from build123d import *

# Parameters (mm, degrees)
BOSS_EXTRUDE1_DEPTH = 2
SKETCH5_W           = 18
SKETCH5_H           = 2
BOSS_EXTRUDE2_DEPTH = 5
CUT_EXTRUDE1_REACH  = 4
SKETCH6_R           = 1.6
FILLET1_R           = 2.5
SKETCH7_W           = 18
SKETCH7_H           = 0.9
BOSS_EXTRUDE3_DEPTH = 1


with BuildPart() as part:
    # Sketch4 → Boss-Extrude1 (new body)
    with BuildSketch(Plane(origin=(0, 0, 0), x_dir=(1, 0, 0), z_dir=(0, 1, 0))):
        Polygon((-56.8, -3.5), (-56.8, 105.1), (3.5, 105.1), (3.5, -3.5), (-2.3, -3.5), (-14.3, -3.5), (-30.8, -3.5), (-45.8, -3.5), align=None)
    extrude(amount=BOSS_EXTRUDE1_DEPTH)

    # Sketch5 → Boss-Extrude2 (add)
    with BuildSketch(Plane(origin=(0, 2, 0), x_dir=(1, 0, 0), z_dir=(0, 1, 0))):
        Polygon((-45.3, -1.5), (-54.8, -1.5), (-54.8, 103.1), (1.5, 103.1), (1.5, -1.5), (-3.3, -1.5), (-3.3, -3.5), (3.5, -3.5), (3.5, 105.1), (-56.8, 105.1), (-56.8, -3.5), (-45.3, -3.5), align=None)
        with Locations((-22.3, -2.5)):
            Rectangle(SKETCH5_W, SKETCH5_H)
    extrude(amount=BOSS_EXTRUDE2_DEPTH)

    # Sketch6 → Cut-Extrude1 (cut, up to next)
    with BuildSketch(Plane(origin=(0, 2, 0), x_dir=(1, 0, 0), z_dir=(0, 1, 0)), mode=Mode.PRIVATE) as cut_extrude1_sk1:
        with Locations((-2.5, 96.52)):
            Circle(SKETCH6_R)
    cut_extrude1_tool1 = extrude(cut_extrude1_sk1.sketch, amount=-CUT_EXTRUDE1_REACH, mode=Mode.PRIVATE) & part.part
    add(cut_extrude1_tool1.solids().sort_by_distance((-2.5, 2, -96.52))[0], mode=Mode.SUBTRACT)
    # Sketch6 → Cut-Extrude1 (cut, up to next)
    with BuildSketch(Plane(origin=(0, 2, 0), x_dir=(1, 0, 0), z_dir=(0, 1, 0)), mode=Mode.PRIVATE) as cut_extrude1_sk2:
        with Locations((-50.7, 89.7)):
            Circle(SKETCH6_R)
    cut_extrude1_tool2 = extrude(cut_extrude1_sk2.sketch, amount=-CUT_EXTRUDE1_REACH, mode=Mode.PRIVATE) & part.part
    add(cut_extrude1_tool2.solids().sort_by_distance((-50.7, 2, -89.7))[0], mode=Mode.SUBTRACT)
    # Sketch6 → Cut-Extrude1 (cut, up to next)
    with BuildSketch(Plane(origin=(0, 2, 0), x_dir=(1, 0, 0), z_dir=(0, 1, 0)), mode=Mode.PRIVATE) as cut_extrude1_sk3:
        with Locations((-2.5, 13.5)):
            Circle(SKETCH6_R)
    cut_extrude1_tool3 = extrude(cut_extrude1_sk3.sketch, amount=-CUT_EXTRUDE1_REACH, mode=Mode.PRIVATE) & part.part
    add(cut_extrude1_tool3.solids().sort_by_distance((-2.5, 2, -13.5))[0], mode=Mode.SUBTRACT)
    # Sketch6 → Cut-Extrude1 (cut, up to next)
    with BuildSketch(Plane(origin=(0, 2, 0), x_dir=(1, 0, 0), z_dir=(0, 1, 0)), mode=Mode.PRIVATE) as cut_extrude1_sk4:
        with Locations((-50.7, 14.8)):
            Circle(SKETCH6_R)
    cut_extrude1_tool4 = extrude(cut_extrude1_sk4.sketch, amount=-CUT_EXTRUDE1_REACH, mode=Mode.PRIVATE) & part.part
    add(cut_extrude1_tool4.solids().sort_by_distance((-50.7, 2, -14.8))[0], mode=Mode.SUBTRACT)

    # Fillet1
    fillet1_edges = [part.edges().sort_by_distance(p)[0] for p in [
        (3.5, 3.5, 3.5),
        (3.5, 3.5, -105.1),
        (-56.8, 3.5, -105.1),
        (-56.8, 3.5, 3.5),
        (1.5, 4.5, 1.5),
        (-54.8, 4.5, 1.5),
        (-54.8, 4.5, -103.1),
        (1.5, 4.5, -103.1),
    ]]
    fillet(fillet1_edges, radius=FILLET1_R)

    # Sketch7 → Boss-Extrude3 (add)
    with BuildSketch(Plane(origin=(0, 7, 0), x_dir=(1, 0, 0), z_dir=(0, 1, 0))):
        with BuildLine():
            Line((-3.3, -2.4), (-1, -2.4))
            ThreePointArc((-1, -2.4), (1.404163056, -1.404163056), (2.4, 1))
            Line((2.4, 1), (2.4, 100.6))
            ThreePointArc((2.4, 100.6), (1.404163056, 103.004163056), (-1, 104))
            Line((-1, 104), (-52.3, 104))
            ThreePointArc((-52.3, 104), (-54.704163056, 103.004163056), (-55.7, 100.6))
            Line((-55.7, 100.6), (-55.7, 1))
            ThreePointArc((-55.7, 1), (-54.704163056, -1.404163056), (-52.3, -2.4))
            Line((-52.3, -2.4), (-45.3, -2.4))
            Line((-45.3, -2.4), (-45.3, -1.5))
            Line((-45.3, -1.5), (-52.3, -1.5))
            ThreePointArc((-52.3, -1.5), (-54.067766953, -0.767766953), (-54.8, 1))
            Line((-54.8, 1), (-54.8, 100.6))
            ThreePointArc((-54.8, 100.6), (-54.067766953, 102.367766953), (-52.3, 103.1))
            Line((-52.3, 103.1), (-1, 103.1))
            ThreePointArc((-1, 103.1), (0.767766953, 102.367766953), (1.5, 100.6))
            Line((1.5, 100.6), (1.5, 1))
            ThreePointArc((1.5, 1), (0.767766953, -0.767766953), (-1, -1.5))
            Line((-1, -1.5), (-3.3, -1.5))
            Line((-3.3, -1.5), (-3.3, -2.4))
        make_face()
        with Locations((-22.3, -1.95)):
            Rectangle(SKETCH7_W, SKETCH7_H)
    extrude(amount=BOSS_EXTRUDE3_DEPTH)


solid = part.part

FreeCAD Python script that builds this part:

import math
import FreeCAD as App
import Part
import Sketcher
from FreeCAD import Vector


def edges_at(feature, points):
    """Names of the edges that pass closest to the given points."""
    edges = feature.Shape.Edges
    near = lambda p: min(range(len(edges)), key=lambda i: edges[i].distToShape(Part.Vertex(*p))[0])
    return sorted({f"Edge{near(p) + 1}" for p in points})

doc = App.newDocument("Part")
body = doc.addObject("PartDesign::Body", "Body")

sketch1 = doc.addObject("Sketcher::SketchObject", "Sketch")
body.addObject(sketch1)
sketch1.AttachmentSupport = (doc.XZ_Plane, [""])
sketch1.MapMode = "FlatFace"
sketch1.addGeometry(Part.LineSegment(Vector(-57, -105, 0), Vector(-57, 4, 0)), False)
sketch1.addGeometry(Part.LineSegment(Vector(-57, 4, 0), Vector(4, 4, 0)), False)
sketch1.addGeometry(Part.LineSegment(Vector(4, 4, 0), Vector(4, -105, 0)), False)
sketch1.addGeometry(Part.LineSegment(Vector(4, -105, 0), Vector(-57, -105, 0)), False)
sketch1.addConstraint(Sketcher.Constraint("Coincident", 0, 2, 1, 1))
sketch1.addConstraint(Sketcher.Constraint("Coincident", 1, 2, 2, 1))
sketch1.addConstraint(Sketcher.Constraint("Coincident", 2, 2, 3, 1))
sketch1.addConstraint(Sketcher.Constraint("Coincident", 3, 2, 0, 1))
sketch1.addConstraint(Sketcher.Constraint("Vertical", 0))
sketch1.addConstraint(Sketcher.Constraint("Horizontal", 1))
sketch1.addConstraint(Sketcher.Constraint("Vertical", 2))
sketch1.addConstraint(Sketcher.Constraint("Horizontal", 3))
sketch1.addConstraint(Sketcher.Constraint("DistanceX", 1, 1, 1, 2, 60.3))
sketch1.addConstraint(Sketcher.Constraint("DistanceY", 0, 1, 0, 2, 108.6))
sketch1.addConstraint(Sketcher.Constraint("DistanceX", 0, 2, -1, 1, 56.8))
sketch1.addConstraint(Sketcher.Constraint("DistanceY", -1, 1, 0, 2, 3.5))
pad1 = doc.addObject("PartDesign::Pad", "Pad")
body.addObject(pad1)
pad1.Profile = sketch1
pad1.Length = 2
pad1.Reversed = True

sketch2 = doc.addObject("Sketcher::SketchObject", "Sketch001")
body.addObject(sketch2)
sketch2.AttachmentSupport = (doc.XZ_Plane, [""])
sketch2.MapMode = "FlatFace"
sketch2.AttachmentOffset = App.Placement(Vector(0, 0, -2), App.Rotation())
sketch2.addGeometry(Part.LineSegment(Vector(-45.3, 1.5, 0), Vector(-54.8, 1.5, 0)), False)
sketch2.addGeometry(Part.LineSegment(Vector(-54.8, 1.5, 0), Vector(-54.8, -103.1, 0)), False)
sketch2.addGeometry(Part.LineSegment(Vector(-54.8, -103.1, 0), Vector(1.5, -103.1, 0)), False)
sketch2.addGeometry(Part.LineSegment(Vector(1.5, -103.1, 0), Vector(1.5, 1.5, 0)), False)
sketch2.addGeometry(Part.LineSegment(Vector(1.5, 1.5, 0), Vector(-3.3, 1.5, 0)), False)
sketch2.addGeometry(Part.LineSegment(Vector(-3.3, 1.5, 0), Vector(-3.3, 3.5, 0)), False)
sketch2.addGeometry(Part.LineSegment(Vector(-3.3, 3.5, 0), Vector(3.5, 3.5, 0)), False)
sketch2.addGeometry(Part.LineSegment(Vector(3.5, 3.5, 0), Vector(3.5, -105.1, 0)), False)
sketch2.addGeometry(Part.LineSegment(Vector(3.5, -105.1, 0), Vector(-56.8, -105.1, 0)), False)
sketch2.addGeometry(Part.LineSegment(Vector(-56.8, -105.1, 0), Vector(-56.8, 3.5, 0)), False)
sketch2.addGeometry(Part.LineSegment(Vector(-56.8, 3.5, 0), Vector(-45.3, 3.5, 0)), False)
sketch2.addGeometry(Part.LineSegment(Vector(-45.3, 3.5, 0), Vector(-45.3, 1.5, 0)), False)
sketch2.addGeometry(Part.LineSegment(Vector(-31.3, 1.5, 0), Vector(-31.3, 3.5, 0)), False)
sketch2.addGeometry(Part.LineSegment(Vector(-31.3, 3.5, 0), Vector(-13.3, 3.5, 0)), False)
sketch2.addGeometry(Part.LineSegment(Vector(-13.3, 3.5, 0), Vector(-13.3, 1.5, 0)), False)
sketch2.addGeometry(Part.LineSegment(Vector(-13.3, 1.5, 0), Vector(-31.3, 1.5, 0)), False)
sketch2.addConstraint(Sketcher.Constraint("Coincident", 0, 2, 1, 1))
sketch2.addConstraint(Sketcher.Constraint("Coincident", 1, 2, 2, 1))
sketch2.addConstraint(Sketcher.Constraint("Coincident", 2, 2, 3, 1))
sketch2.addConstraint(Sketcher.Constraint("Coincident", 3, 2, 4, 1))
sketch2.addConstraint(Sketcher.Constraint("Coincident", 4, 2, 5, 1))
sketch2.addConstraint(Sketcher.Constraint("Coincident", 5, 2, 6, 1))
sketch2.addConstraint(Sketcher.Constraint("Coincident", 6, 2, 7, 1))
sketch2.addConstraint(Sketcher.Constraint("Coincident", 7, 2, 8, 1))
sketch2.addConstraint(Sketcher.Constraint("Coincident", 8, 2, 9, 1))
sketch2.addConstraint(Sketcher.Constraint("Coincident", 9, 2, 10, 1))
sketch2.addConstraint(Sketcher.Constraint("Coincident", 10, 2, 11, 1))
sketch2.addConstraint(Sketcher.Constraint("Coincident", 11, 2, 0, 1))
sketch2.addConstraint(Sketcher.Constraint("Coincident", 12, 2, 13, 1))
sketch2.addConstraint(Sketcher.Constraint("Coincident", 13, 2, 14, 1))
sketch2.addConstraint(Sketcher.Constraint("Coincident", 14, 2, 15, 1))
sketch2.addConstraint(Sketcher.Constraint("Coincident", 15, 2, 12, 1))
sketch2.addConstraint(Sketcher.Constraint("Horizontal", 0))
sketch2.addConstraint(Sketcher.Constraint("Vertical", 1))
sketch2.addConstraint(Sketcher.Constraint("Horizontal", 2))
sketch2.addConstraint(Sketcher.Constraint("Vertical", 3))
sketch2.addConstraint(Sketcher.Constraint("Horizontal", 4))
sketch2.addConstraint(Sketcher.Constraint("Vertical", 5))
sketch2.addConstraint(Sketcher.Constraint("Horizontal", 6))
sketch2.addConstraint(Sketcher.Constraint("Vertical", 7))
sketch2.addConstraint(Sketcher.Constraint("Horizontal", 8))
sketch2.addConstraint(Sketcher.Constraint("Vertical", 9))
sketch2.addConstraint(Sketcher.Constraint("Horizontal", 10))
sketch2.addConstraint(Sketcher.Constraint("Vertical", 11))
sketch2.addConstraint(Sketcher.Constraint("Vertical", 12))
sketch2.addConstraint(Sketcher.Constraint("Horizontal", 13))
sketch2.addConstraint(Sketcher.Constraint("Vertical", 14))
sketch2.addConstraint(Sketcher.Constraint("Horizontal", 15))
sketch2.addConstraint(Sketcher.Constraint("Horizontal", 0, 2, 3, 2))
sketch2.addConstraint(Sketcher.Constraint("Horizontal", 6, 2, 9, 2))
sketch2.addConstraint(Sketcher.Constraint("Horizontal", 10, 2, 12, 2))
sketch2.addConstraint(Sketcher.Constraint("Horizontal", 11, 2, 14, 2))
sketch2.addConstraint(Sketcher.Constraint("DistanceX", 13, 1, 13, 2, 18.0))
sketch2.addConstraint(Sketcher.Constraint("DistanceY", 5, 1, 5, 2, 2.0))
sketch2.addConstraint(Sketcher.Constraint("DistanceX", 0, 2, 0, 1, 9.5))
sketch2.addConstraint(Sketcher.Constraint("DistanceX", 2, 1, 2, 2, 56.3))
sketch2.addConstraint(Sketcher.Constraint("DistanceX", 4, 2, 4, 1, 4.8))
sketch2.addConstraint(Sketcher.Constraint("DistanceX", 6, 1, 6, 2, 6.8))
sketch2.addConstraint(Sketcher.Constraint("DistanceX", 8, 2, 8, 1, 60.3))
sketch2.addConstraint(Sketcher.Constraint("DistanceY", 1, 2, 1, 1, 104.6))
sketch2.addConstraint(Sketcher.Constraint("DistanceY", 7, 2, 7, 1, 108.6))
sketch2.addConstraint(Sketcher.Constraint("DistanceX", 10, 2, 12, 2, 14.0))
sketch2.addConstraint(Sketcher.Constraint("DistanceX", 0, 2, -1, 1, 54.8))
sketch2.addConstraint(Sketcher.Constraint("DistanceY", -1, 1, 0, 2, 1.5))
pad2 = doc.addObject("PartDesign::Pad", "Pad001")
body.addObject(pad2)
pad2.Profile = sketch2
pad2.Length = 5
pad2.Reversed = True

sketch3 = doc.addObject("Sketcher::SketchObject", "Sketch002")
body.addObject(sketch3)
sketch3.AttachmentSupport = (doc.XZ_Plane, [""])
sketch3.MapMode = "FlatFace"
sketch3.AttachmentOffset = App.Placement(Vector(0, 0, -2), App.Rotation())
sketch3.addGeometry(Part.Circle(Vector(-2.5, -96.5, 0), Vector(0, 0, 1), 1.6), False)
sketch3.addConstraint(Sketcher.Constraint("Diameter", 0, 3.2))
sketch3.addConstraint(Sketcher.Constraint("DistanceX", 0, 3, -1, 1, 2.5))
sketch3.addConstraint(Sketcher.Constraint("DistanceY", 0, 3, -1, 1, 96.52))
pocket1 = doc.addObject("PartDesign::Pocket", "Pocket")
body.addObject(pocket1)
pocket1.Profile = sketch3
pocket1.Type = "UpToFirst"
pocket1.Reversed = True

sketch4 = doc.addObject("Sketcher::SketchObject", "Sketch003")
body.addObject(sketch4)
sketch4.AttachmentSupport = (doc.XZ_Plane, [""])
sketch4.MapMode = "FlatFace"
sketch4.AttachmentOffset = App.Placement(Vector(0, 0, -2), App.Rotation())
sketch4.addGeometry(Part.Circle(Vector(-50.7, -89.7, 0), Vector(0, 0, 1), 1.6), False)
sketch4.addConstraint(Sketcher.Constraint("Diameter", 0, 3.2))
sketch4.addConstraint(Sketcher.Constraint("DistanceX", 0, 3, -1, 1, 50.7))
sketch4.addConstraint(Sketcher.Constraint("DistanceY", 0, 3, -1, 1, 89.7))
pocket2 = doc.addObject("PartDesign::Pocket", "Pocket001")
body.addObject(pocket2)
pocket2.Profile = sketch4
pocket2.Type = "UpToFirst"
pocket2.Reversed = True

sketch5 = doc.addObject("Sketcher::SketchObject", "Sketch004")
body.addObject(sketch5)
sketch5.AttachmentSupport = (doc.XZ_Plane, [""])
sketch5.MapMode = "FlatFace"
sketch5.AttachmentOffset = App.Placement(Vector(0, 0, -2), App.Rotation())
sketch5.addGeometry(Part.Circle(Vector(-2.5, -13.5, 0), Vector(0, 0, 1), 1.6), False)
sketch5.addConstraint(Sketcher.Constraint("Diameter", 0, 3.2))
sketch5.addConstraint(Sketcher.Constraint("DistanceX", 0, 3, -1, 1, 2.5))
sketch5.addConstraint(Sketcher.Constraint("DistanceY", 0, 3, -1, 1, 13.5))
pocket3 = doc.addObject("PartDesign::Pocket", "Pocket002")
body.addObject(pocket3)
pocket3.Profile = sketch5
pocket3.Type = "UpToFirst"
pocket3.Reversed = True

sketch6 = doc.addObject("Sketcher::SketchObject", "Sketch005")
body.addObject(sketch6)
sketch6.AttachmentSupport = (doc.XZ_Plane, [""])
sketch6.MapMode = "FlatFace"
sketch6.AttachmentOffset = App.Placement(Vector(0, 0, -2), App.Rotation())
sketch6.addGeometry(Part.Circle(Vector(-50.7, -14.8, 0), Vector(0, 0, 1), 1.6), False)
sketch6.addConstraint(Sketcher.Constraint("Diameter", 0, 3.2))
sketch6.addConstraint(Sketcher.Constraint("DistanceX", 0, 3, -1, 1, 50.7))
sketch6.addConstraint(Sketcher.Constraint("DistanceY", 0, 3, -1, 1, 14.8))
pocket4 = doc.addObject("PartDesign::Pocket", "Pocket003")
body.addObject(pocket4)
pocket4.Profile = sketch6
pocket4.Type = "UpToFirst"
pocket4.Reversed = True
doc.recompute()

fillet = doc.addObject("PartDesign::Fillet", "Fillet")
body.addObject(fillet)
fillet.Base = (pocket4, edges_at(pocket4, [
    (3.5, 3.5, 3.5),
    (3.5, 3.5, -105.1),
    (-56.8, 3.5, -105.1),
    (-56.8, 3.5, 3.5),
    (1.5, 4.5, 1.5),
    (-54.8, 4.5, 1.5),
    (-54.8, 4.5, -103.1),
    (1.5, 4.5, -103.1),
]))
fillet.Radius = 2.5

sketch7 = doc.addObject("Sketcher::SketchObject", "Sketch006")
body.addObject(sketch7)
sketch7.AttachmentSupport = (doc.XZ_Plane, [""])
sketch7.MapMode = "FlatFace"
sketch7.AttachmentOffset = App.Placement(Vector(0, 0, -7), App.Rotation())
sketch7.addGeometry(Part.LineSegment(Vector(-3.3, 2.4, 0), Vector(-1, 2.4, 0)), False)
sketch7.addGeometry(Part.ArcOfCircle(Part.Circle(Vector(-1, -1, 0), Vector(0, 0, 1), 3.4), math.radians(0), math.radians(90)), False)
sketch7.addGeometry(Part.LineSegment(Vector(2.4, -1, 0), Vector(2.4, -100.6, 0)), False)
sketch7.addGeometry(Part.ArcOfCircle(Part.Circle(Vector(-1, -100.6, 0), Vector(0, 0, 1), 3.4), math.radians(-90), math.radians(0)), False)
sketch7.addGeometry(Part.LineSegment(Vector(-1, -104, 0), Vector(-52.3, -104, 0)), False)
sketch7.addGeometry(Part.ArcOfCircle(Part.Circle(Vector(-52.3, -100.6, 0), Vector(0, 0, 1), 3.4), math.radians(180), math.radians(270)), False)
sketch7.addGeometry(Part.LineSegment(Vector(-55.7, -100.6, 0), Vector(-55.7, -1, 0)), False)
sketch7.addGeometry(Part.ArcOfCircle(Part.Circle(Vector(-52.3, -1, 0), Vector(0, 0, 1), 3.4), math.radians(90), math.radians(180)), False)
sketch7.addGeometry(Part.LineSegment(Vector(-52.3, 2.4, 0), Vector(-45.3, 2.4, 0)), False)
sketch7.addGeometry(Part.LineSegment(Vector(-45.3, 2.4, 0), Vector(-45.3, 1.5, 0)), False)
sketch7.addGeometry(Part.LineSegment(Vector(-45.3, 1.5, 0), Vector(-52.3, 1.5, 0)), False)
sketch7.addGeometry(Part.ArcOfCircle(Part.Circle(Vector(-52.3, -1, 0), Vector(0, 0, 1), 2.5), math.radians(90), math.radians(180)), False)
sketch7.addGeometry(Part.LineSegment(Vector(-54.8, -1, 0), Vector(-54.8, -100.6, 0)), False)
sketch7.addGeometry(Part.ArcOfCircle(Part.Circle(Vector(-52.3, -100.6, 0), Vector(0, 0, 1), 2.5), math.radians(180), math.radians(270)), False)
sketch7.addGeometry(Part.LineSegment(Vector(-52.3, -103.1, 0), Vector(-1, -103.1, 0)), False)
sketch7.addGeometry(Part.ArcOfCircle(Part.Circle(Vector(-1, -100.6, 0), Vector(0, 0, 1), 2.5), math.radians(-90), math.radians(0)), False)
sketch7.addGeometry(Part.LineSegment(Vector(1.5, -100.6, 0), Vector(1.5, -1, 0)), False)
sketch7.addGeometry(Part.ArcOfCircle(Part.Circle(Vector(-1, -1, 0), Vector(0, 0, 1), 2.5), math.radians(0), math.radians(90)), False)
sketch7.addGeometry(Part.LineSegment(Vector(-1, 1.5, 0), Vector(-3.3, 1.5, 0)), False)
sketch7.addGeometry(Part.LineSegment(Vector(-3.3, 1.5, 0), Vector(-3.3, 2.4, 0)), False)
sketch7.addGeometry(Part.LineSegment(Vector(-31.3, 1.5, 0), Vector(-31.3, 2.4, 0)), False)
sketch7.addGeometry(Part.LineSegment(Vector(-31.3, 2.4, 0), Vector(-13.3, 2.4, 0)), False)
sketch7.addGeometry(Part.LineSegment(Vector(-13.3, 2.4, 0), Vector(-13.3, 1.5, 0)), False)
sketch7.addGeometry(Part.LineSegment(Vector(-13.3, 1.5, 0), Vector(-31.3, 1.5, 0)), False)
sketch7.addConstraint(Sketcher.Constraint("Tangent", 0, 2, 1, 2))
sketch7.addConstraint(Sketcher.Constraint("Tangent", 1, 1, 2, 1))
sketch7.addConstraint(Sketcher.Constraint("Tangent", 2, 2, 3, 2))
sketch7.addConstraint(Sketcher.Constraint("Tangent", 3, 1, 4, 1))
sketch7.addConstraint(Sketcher.Constraint("Tangent", 4, 2, 5, 2))
sketch7.addConstraint(Sketcher.Constraint("Tangent", 5, 1, 6, 1))
sketch7.addConstraint(Sketcher.Constraint("Tangent", 6, 2, 7, 2))
sketch7.addConstraint(Sketcher.Constraint("Tangent", 7, 1, 8, 1))
sketch7.addConstraint(Sketcher.Constraint("Coincident", 8, 2, 9, 1))
sketch7.addConstraint(Sketcher.Constraint("Coincident", 9, 2, 10, 1))
sketch7.addConstraint(Sketcher.Constraint("Tangent", 10, 2, 11, 1))
sketch7.addConstraint(Sketcher.Constraint("Tangent", 11, 2, 12, 1))
sketch7.addConstraint(Sketcher.Constraint("Tangent", 12, 2, 13, 1))
sketch7.addConstraint(Sketcher.Constraint("Tangent", 13, 2, 14, 1))
sketch7.addConstraint(Sketcher.Constraint("Tangent", 14, 2, 15, 1))
sketch7.addConstraint(Sketcher.Constraint("Tangent", 15, 2, 16, 1))
sketch7.addConstraint(Sketcher.Constraint("Tangent", 16, 2, 17, 1))
sketch7.addConstraint(Sketcher.Constraint("Tangent", 17, 2, 18, 1))
sketch7.addConstraint(Sketcher.Constraint("Coincident", 18, 2, 19, 1))
sketch7.addConstraint(Sketcher.Constraint("Coincident", 19, 2, 0, 1))
sketch7.addConstraint(Sketcher.Constraint("Coincident", 20, 2, 21, 1))
sketch7.addConstraint(Sketcher.Constraint("Coincident", 21, 2, 22, 1))
sketch7.addConstraint(Sketcher.Constraint("Coincident", 22, 2, 23, 1))
sketch7.addConstraint(Sketcher.Constraint("Coincident", 23, 2, 20, 1))
sketch7.addConstraint(Sketcher.Constraint("Horizontal", 0))
sketch7.addConstraint(Sketcher.Constraint("Vertical", 2))
sketch7.addConstraint(Sketcher.Constraint("Horizontal", 4))
sketch7.addConstraint(Sketcher.Constraint("Vertical", 6))
sketch7.addConstraint(Sketcher.Constraint("Horizontal", 8))
sketch7.addConstraint(Sketcher.Constraint("Vertical", 9))
sketch7.addConstraint(Sketcher.Constraint("Horizontal", 10))
sketch7.addConstraint(Sketcher.Constraint("Vertical", 12))
sketch7.addConstraint(Sketcher.Constraint("Horizontal", 14))
sketch7.addConstraint(Sketcher.Constraint("Vertical", 16))
sketch7.addConstraint(Sketcher.Constraint("Horizontal", 18))
sketch7.addConstraint(Sketcher.Constraint("Vertical", 19))
sketch7.addConstraint(Sketcher.Constraint("Vertical", 20))
sketch7.addConstraint(Sketcher.Constraint("Horizontal", 21))
sketch7.addConstraint(Sketcher.Constraint("Vertical", 22))
sketch7.addConstraint(Sketcher.Constraint("Horizontal", 23))
sketch7.addConstraint(Sketcher.Constraint("Coincident", 11, 3, 7, 3))
sketch7.addConstraint(Sketcher.Constraint("Coincident", 13, 3, 5, 3))
sketch7.addConstraint(Sketcher.Constraint("Coincident", 15, 3, 3, 3))
sketch7.addConstraint(Sketcher.Constraint("Coincident", 17, 3, 1, 3))
sketch7.addConstraint(Sketcher.Constraint("Equal", 1, 3))
sketch7.addConstraint(Sketcher.Constraint("Equal", 3, 5))
sketch7.addConstraint(Sketcher.Constraint("Equal", 5, 7))
sketch7.addConstraint(Sketcher.Constraint("Horizontal", 1, 3, 7, 3))
sketch7.addConstraint(Sketcher.Constraint("Horizontal", 19, 2, 20, 2))
sketch7.addConstraint(Sketcher.Constraint("Horizontal", 18, 2, 22, 2))
sketch7.addConstraint(Sketcher.Constraint("Radius", 1, 3.4))
sketch7.addConstraint(Sketcher.Constraint("Radius", 11, 2.5))
sketch7.addConstraint(Sketcher.Constraint("DistanceX", 8, 1, 8, 2, 7.0))
sketch7.addConstraint(Sketcher.Constraint("DistanceX", 21, 1, 21, 2, 18.0))
sketch7.addConstraint(Sketcher.Constraint("DistanceX", 0, 1, 0, 2, 2.3))
sketch7.addConstraint(Sketcher.Constraint("DistanceX", 4, 2, 4, 1, 51.3))
sketch7.addConstraint(Sketcher.Constraint("DistanceY", 2, 2, 2, 1, 99.6))
sketch7.addConstraint(Sketcher.Constraint("DistanceX", 1, 3, -1, 1, 1.0))
sketch7.addConstraint(Sketcher.Constraint("DistanceY", 1, 3, -1, 1, 1.0))
sketch7.addConstraint(Sketcher.Constraint("DistanceX", 8, 2, 20, 2, 14.0))
pad3 = doc.addObject("PartDesign::Pad", "Pad002")
body.addObject(pad3)
pad3.Profile = sketch7
pad3.Length = 1
pad3.Reversed = True

doc.recompute()
